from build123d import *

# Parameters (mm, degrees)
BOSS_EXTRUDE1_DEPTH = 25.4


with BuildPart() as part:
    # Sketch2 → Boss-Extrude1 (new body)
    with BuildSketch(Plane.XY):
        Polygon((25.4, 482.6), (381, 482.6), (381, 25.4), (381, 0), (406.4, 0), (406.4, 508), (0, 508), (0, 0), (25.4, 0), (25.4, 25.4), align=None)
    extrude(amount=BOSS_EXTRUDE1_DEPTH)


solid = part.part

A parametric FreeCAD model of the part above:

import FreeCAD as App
import Part
import Sketcher
Q = App.Units.Quantity

doc = App.newDocument("Part")
body = doc.addObject("PartDesign::Body", "Body")

# Sketch on XY plane
sketch1 = doc.addObject("Sketcher::SketchObject", "Sketch")
body.addObject(sketch1)
sketch1.AttachmentSupport = (doc.XY_Plane, [""])
sketch1.MapMode = "FlatFace"
sketch1.addGeometry(Part.LineSegment(App.Vector(25, 483, 0), App.Vector(381, 483, 0)), False)
sketch1.addGeometry(Part.LineSegment(App.Vector(381, 483, 0), App.Vector(381, 0, 0)), False)
sketch1.addGeometry(Part.LineSegment(App.Vector(381, 0, 0), App.Vector(406, 0, 0)), False)
sketch1.addGeometry(Part.LineSegment(App.Vector(406, 0, 0), App.Vector(406, 508, 0)), False)
sketch1.addGeometry(Part.LineSegment(App.Vector(406, 508, 0), App.Vector(0, 508, 0)), False)
sketch1.addGeometry(Part.LineSegment(App.Vector(0, 508, 0), App.Vector(0, 0, 0)), False)
sketch1.addGeometry(Part.LineSegment(App.Vector(0, 0, 0), App.Vector(25, 0, 0)), False)
sketch1.addGeometry(Part.LineSegment(App.Vector(25, 0, 0), App.Vector(25, 483, 0)), False)
sketch1.addConstraint(Sketcher.Constraint("Coincident", 0, 2, 1, 1))
sketch1.addConstraint(Sketcher.Constraint("Coincident", 1, 2, 2, 1))
sketch1.addConstraint(Sketcher.Constraint("Coincident", 2, 2, 3, 1))
sketch1.addConstraint(Sketcher.Constraint("Coincident", 3, 2, 4, 1))
sketch1.addConstraint(Sketcher.Constraint("Coincident", 4, 2, 5, 1))
sketch1.addConstraint(Sketcher.Constraint("Coincident", 5, 2, 6, 1))
sketch1.addConstraint(Sketcher.Constraint("Coincident", 6, 2, 7, 1))
sketch1.addConstraint(Sketcher.Constraint("Coincident", 7, 2, 0, 1))
sketch1.addConstraint(Sketcher.Constraint("Horizontal", 0))
sketch1.addConstraint(Sketcher.Constraint("Vertical", 1))
sketch1.addConstraint(Sketcher.Constraint("Horizontal", 2))
sketch1.addConstraint(Sketcher.Constraint("Vertical", 3))
sketch1.addConstraint(Sketcher.Constraint("Horizontal", 4))
sketch1.addConstraint(Sketcher.Constraint("Vertical", 5))
sketch1.addConstraint(Sketcher.Constraint("Horizontal", 6))
sketch1.addConstraint(Sketcher.Constraint("Vertical", 7))
sketch1.addConstraint(Sketcher.Constraint("Coincident", 5, 2, -1, 1))
sketch1.addConstraint(Sketcher.Constraint("PointOnObject", 1, 2, -1))
sketch1.addConstraint(Sketcher.Constraint("Equal", 2, 6))
sketch1.addConstraint(Sketcher.Constraint("DistanceX", 0, 1, 0, 2, Q("14 in")))
sketch1.addConstraint(Sketcher.Constraint("DistanceX", 2, 1, 2, 2, Q("1 in")))
sketch1.addConstraint(Sketcher.Constraint("DistanceY", 1, 2, 1, 1, Q("19 in")))
sketch1.addConstraint(Sketcher.Constraint("DistanceY", 3, 1, 3, 2, Q("20 in")))
pad1 = doc.addObject("PartDesign::Pad", "Pad")
body.addObject(pad1)
pad1.Profile = sketch1
pad1.Length = Q("1 in")

doc.recompute()
